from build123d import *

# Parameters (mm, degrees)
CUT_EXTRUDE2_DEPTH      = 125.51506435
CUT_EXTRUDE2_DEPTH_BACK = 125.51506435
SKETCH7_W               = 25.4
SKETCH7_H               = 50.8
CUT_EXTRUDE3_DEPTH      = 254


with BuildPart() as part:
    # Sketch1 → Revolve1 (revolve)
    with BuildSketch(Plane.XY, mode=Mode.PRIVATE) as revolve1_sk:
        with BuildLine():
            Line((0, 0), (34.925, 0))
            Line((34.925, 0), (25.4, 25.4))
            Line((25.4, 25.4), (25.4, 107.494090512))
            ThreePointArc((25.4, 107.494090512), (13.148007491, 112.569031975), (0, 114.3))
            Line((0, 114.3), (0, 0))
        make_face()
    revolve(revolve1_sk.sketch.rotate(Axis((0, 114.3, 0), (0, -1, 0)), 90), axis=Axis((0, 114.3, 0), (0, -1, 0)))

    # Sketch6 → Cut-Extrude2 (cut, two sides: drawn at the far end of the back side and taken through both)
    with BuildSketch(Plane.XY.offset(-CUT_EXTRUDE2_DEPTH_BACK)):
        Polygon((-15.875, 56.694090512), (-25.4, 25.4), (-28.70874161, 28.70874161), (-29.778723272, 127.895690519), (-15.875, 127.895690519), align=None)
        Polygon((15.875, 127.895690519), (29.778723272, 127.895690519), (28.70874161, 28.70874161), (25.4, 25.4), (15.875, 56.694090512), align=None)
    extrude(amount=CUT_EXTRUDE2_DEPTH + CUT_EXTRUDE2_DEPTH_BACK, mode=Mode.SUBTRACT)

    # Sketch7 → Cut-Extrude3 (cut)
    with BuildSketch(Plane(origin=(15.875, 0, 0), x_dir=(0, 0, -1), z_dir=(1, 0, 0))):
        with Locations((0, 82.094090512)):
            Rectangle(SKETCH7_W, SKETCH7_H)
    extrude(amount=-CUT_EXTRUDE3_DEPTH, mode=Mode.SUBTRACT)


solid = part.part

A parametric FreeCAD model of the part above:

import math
import FreeCAD as App
import Part
import Sketcher
Q = App.Units.Quantity


def add_polygon(sketch, points):
    """Adds a closed chain of lines whose ends are joined by coincident constraints."""
    first, n = sketch.GeometryCount, len(points)
    for a, b in zip(points, points[1:] + points[:1]):
        sketch.addGeometry(Part.LineSegment(App.Vector(*a, 0), App.Vector(*b, 0)), False)
    for i in range(n):
        sketch.addConstraint(Sketcher.Constraint("Coincident", first + i, 2, first + (i + 1) % n, 1))

doc = App.newDocument("Part")
body = doc.addObject("PartDesign::Body", "Body")

sketch1 = doc.addObject("Sketcher::SketchObject", "Sketch")
body.addObject(sketch1)
sketch1.AttachmentSupport = (doc.XY_Plane, [""])
sketch1.MapMode = "FlatFace"
sketch1.addGeometry([
    Part.LineSegment(App.Vector(0, 0, 0), App.Vector(34.925, 0, 0)),
    Part.LineSegment(App.Vector(34.925, 0, 0), App.Vector(25.4, 25.4, 0)),
    Part.LineSegment(App.Vector(25.4, 25.4, 0), App.Vector(25.4, 107.494091, 0)),
    Part.ArcOfCircle(Part.Circle(App.Vector(0, 63.5, 0), App.Vector(0, 0, 1), 50.8), math.radians(60), math.radians(90)),
    Part.LineSegment(App.Vector(0, 114.3, 0), App.Vector(0, 0, 0)),
], False)
sketch1.addConstraint([
    Sketcher.Constraint("Coincident", 0, 2, 1, 1),
    Sketcher.Constraint("Coincident", 1, 2, 2, 1),
    Sketcher.Constraint("Coincident", 2, 2, 3, 1),
    Sketcher.Constraint("Coincident", 3, 2, 4, 1),
    Sketcher.Constraint("Coincident", 4, 2, 0, 1),
    Sketcher.Constraint("Horizontal", 0),
    Sketcher.Constraint("Vertical", 2),
    Sketcher.Constraint("Vertical", 4),
    Sketcher.Constraint("Coincident", 4, 2, -1, 1),
    Sketcher.Constraint("PointOnObject", 3, 3, -2),
    Sketcher.Constraint("Radius", 3, Q("2 in")),
    Sketcher.Constraint("DistanceY", 4, 2, 4, 1, Q("4.5 in")),
    Sketcher.Constraint("DistanceX", -1, 1, 1, 2, Q("1 in")),
    Sketcher.Constraint("DistanceY", -1, 1, 1, 2, Q("1 in")),
    Sketcher.Constraint("DistanceX", 0, 1, 0, 2, Q("1.375 in")),
])
revolution = doc.addObject("PartDesign::Revolution", "Revolution")
body.addObject(revolution)
revolution.Profile = sketch1
revolution.ReferenceAxis = (sketch1, ["V_Axis"])
revolution.Angle = 360

sketch2 = doc.addObject("Sketcher::SketchObject", "Sketch001")
body.addObject(sketch2)
sketch2.AttachmentSupport = (doc.XY_Plane, [""])
sketch2.MapMode = "FlatFace"
add_polygon(sketch2, [(-25.4, 25.4), (-15.875, 56.694091), (-15.875, 127.895691), (-29.778723, 127.895691), (-28.708742, 28.708742)])
add_polygon(sketch2, [(29.778723, 127.895691), (15.875, 127.895691), (15.875, 56.694091), (25.4, 25.4), (28.708742, 28.708742)])
sketch2.addConstraint([
    Sketcher.Constraint("Vertical", 1),
    Sketcher.Constraint("Horizontal", 2),
    Sketcher.Constraint("Horizontal", 5),
    Sketcher.Constraint("Vertical", 6),
    Sketcher.Constraint("Symmetric", 1, 2, 5, 2, -2),
    Sketcher.Constraint("Symmetric", 4, 2, 7, 2, -2),
    Sketcher.Constraint("Symmetric", 3, 2, 8, 2, -2),
    Sketcher.Constraint("Perpendicular", 4, 8),
    Sketcher.Constraint("Horizontal", 0, 2, 6, 2),
    Sketcher.Constraint("Equal", 2, 5),
    Sketcher.Constraint("DistanceX", 4, 2, -1, 1, Q("1 in")),
    Sketcher.Constraint("DistanceY", -1, 1, 4, 2, Q("1 in")),
    Sketcher.Constraint("DistanceX", 1, 2, 5, 2, Q("1.25 in")),
    Sketcher.Constraint("DistanceY", 1, 1, 1, 2, Q("71.2016 mm")),
    Sketcher.Constraint("Distance", 3, Q("99.19272 mm")),
    Sketcher.Constraint("DistanceX", 2, 2, 2, 1, Q("13.903723 mm")),
    Sketcher.Constraint("DistanceY", -1, 1, 0, 2, Q("56.694091 mm")),
])
pocket1 = doc.addObject("PartDesign::Pocket", "Pocket")
body.addObject(pocket1)
pocket1.Profile = sketch2
pocket1.Type = "ThroughAll"
pocket1.Midplane = True

sketch3 = doc.addObject("Sketcher::SketchObject", "Sketch002")
body.addObject(sketch3)
sketch3.AttachmentSupport = (doc.YZ_Plane, [""])
sketch3.MapMode = "FlatFace"
sketch3.AttachmentOffset = App.Placement(App.Vector(0, 0, 0.625 * 25.4), App.Rotation())
add_polygon(sketch3, [(107.494091, 12.7), (56.694091, 12.7), (56.694091, -12.7), (107.494091, -12.7)])
sketch3.addConstraint([
    Sketcher.Constraint("Horizontal", 0),
    Sketcher.Constraint("Vertical", 1),
    Sketcher.Constraint("Horizontal", 2),
    Sketcher.Constraint("Vertical", 3),
    Sketcher.Constraint("DistanceX", 0, 2, 0, 1, Q("2 in")),
    Sketcher.Constraint("DistanceY", 1, 2, 1, 1, Q("1 in")),
    Sketcher.Constraint("DistanceY", -1, 1, 0, 2, Q("0.5 in")),
    Sketcher.Constraint("DistanceX", -1, 1, 0, 2, Q("56.694091 mm")),
])
pocket2 = doc.addObject("PartDesign::Pocket", "Pocket001")
body.addObject(pocket2)
pocket2.Profile = sketch3
pocket2.Length = Q("10 in")

doc.recompute()
